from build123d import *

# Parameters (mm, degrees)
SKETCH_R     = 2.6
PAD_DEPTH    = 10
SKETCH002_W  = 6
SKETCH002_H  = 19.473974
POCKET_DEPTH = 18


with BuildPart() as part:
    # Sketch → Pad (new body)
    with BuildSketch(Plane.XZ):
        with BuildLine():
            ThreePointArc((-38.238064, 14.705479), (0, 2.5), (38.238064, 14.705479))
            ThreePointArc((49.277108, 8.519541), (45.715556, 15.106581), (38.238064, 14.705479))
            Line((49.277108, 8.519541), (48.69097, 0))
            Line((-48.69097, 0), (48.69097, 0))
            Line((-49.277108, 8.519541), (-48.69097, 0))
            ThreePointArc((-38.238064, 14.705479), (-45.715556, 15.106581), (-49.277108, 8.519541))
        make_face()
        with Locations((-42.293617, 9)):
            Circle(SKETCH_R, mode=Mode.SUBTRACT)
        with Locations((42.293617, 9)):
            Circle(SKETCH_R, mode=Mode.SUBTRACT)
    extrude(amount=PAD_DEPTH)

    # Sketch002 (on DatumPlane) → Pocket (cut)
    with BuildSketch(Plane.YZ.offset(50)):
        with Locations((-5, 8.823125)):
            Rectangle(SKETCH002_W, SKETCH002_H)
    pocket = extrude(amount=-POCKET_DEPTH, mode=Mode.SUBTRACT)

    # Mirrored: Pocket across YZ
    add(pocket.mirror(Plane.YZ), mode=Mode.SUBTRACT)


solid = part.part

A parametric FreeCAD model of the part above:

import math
import FreeCAD as App
import Part
import Sketcher
Q = App.Units.Quantity


def add_polygon(sketch, points):
    """Adds a closed chain of lines whose ends are joined by coincident constraints."""
    first, n = sketch.GeometryCount, len(points)
    for a, b in zip(points, points[1:] + points[:1]):
        sketch.addGeometry(Part.LineSegment(App.Vector(*a, 0), App.Vector(*b, 0)), False)
    for i in range(n):
        sketch.addConstraint(Sketcher.Constraint("Coincident", first + i, 2, first + (i + 1) % n, 1))

doc = App.newDocument("Part")
body = doc.addObject("PartDesign::Body", "Body")

sketch1 = body.newObject("Sketcher::SketchObject", "Sketch")
sketch1.AttachmentSupport = (doc.getObject("XZ_Plane"), [""])
sketch1.MapMode = "FlatFace"
sketch1.addGeometry(Part.ArcOfCircle(Part.Circle(App.Vector(0, 68.500001, 0), App.Vector(0, 0, 1), 66.000001), math.radians(-125.405864), math.radians(-54.594136)), False)
sketch1.addGeometry(Part.ArcOfCircle(Part.Circle(App.Vector(-42.293617, 9.000001, 0), App.Vector(0, 0, 1), 6.999999), math.radians(54.594126), math.radians(183.935711)), False)
sketch1.addGeometry(Part.LineSegment(App.Vector(-49.277108, 8.519541, 0), App.Vector(-48.69097, 0, 0)), False)
sketch1.addGeometry(Part.LineSegment(App.Vector(-48.69097, 0, 0), App.Vector(48.69097, 0, 0)), False)
sketch1.addGeometry(Part.LineSegment(App.Vector(48.69097, 0, 0), App.Vector(49.277108, 8.519541, 0)), False)
sketch1.addGeometry(Part.ArcOfCircle(Part.Circle(App.Vector(42.293617, 9.000001, 0), App.Vector(0, 0, 1), 6.999999), math.radians(-3.935711), math.radians(125.405874)), False)
sketch1.addGeometry(Part.Circle(App.Vector(42.293617, 9, 0), App.Vector(0, 0, 1), 2.6), False)
sketch1.addGeometry(Part.Circle(App.Vector(-42.293617, 9, 0), App.Vector(0, 0, 1), 2.6), False)
sketch1.addConstraint(Sketcher.Constraint("Tangent", 0, 1, 1, 1))
sketch1.addConstraint(Sketcher.Constraint("Tangent", 1, 2, 2, 1))
sketch1.addConstraint(Sketcher.Constraint("Coincident", 2, 2, 3, 1))
sketch1.addConstraint(Sketcher.Constraint("Coincident", 3, 2, 4, 1))
sketch1.addConstraint(Sketcher.Constraint("Tangent", 4, 2, 5, 1))
sketch1.addConstraint(Sketcher.Constraint("Tangent", 5, 2, 0, 2))
sketch1.addConstraint(Sketcher.Constraint("Horizontal", 3))
sketch1.addConstraint(Sketcher.Constraint("Coincident", 6, 3, 5, 3))
sketch1.addConstraint(Sketcher.Constraint("Coincident", 7, 3, 1, 3))
sketch1.addConstraint(Sketcher.Constraint("Equal", 1, 5))
sketch1.addConstraint(Sketcher.Constraint("Equal", 6, 7))
sketch1.addConstraint(Sketcher.Constraint("Symmetric", 2, 2, 3, 2, -1, 1))
sketch1.addConstraint(Sketcher.Constraint("Symmetric", 1, 3, 5, 3, -2))
sketch1.addConstraint(Sketcher.Constraint("Radius", 0, Q("66.000001 mm")))
sketch1.addConstraint(Sketcher.Constraint("Radius", 1, Q("6.999999 mm")))
sketch1.addConstraint(Sketcher.Constraint("Diameter", 6, Q("5.2 mm")))
sketch1.addConstraint(Sketcher.Constraint("DistanceY", -1, 1, 1, 3, Q("9.000001 mm")))
sketch1.addConstraint(Sketcher.Constraint("DistanceY", -1, 1, 0, 3, Q("68.500001 mm")))
sketch1.addConstraint(Sketcher.Constraint("DistanceX", 3, 1, 3, 2, Q("97.38194 mm")))
pad1 = body.newObject("PartDesign::Pad", "Pad")
pad1.Profile = sketch1
pad1.Length = 10

sketch2 = body.newObject("Sketcher::SketchObject", "Sketch001")
sketch2.AttachmentSupport = (doc.getObject("YZ_Plane"), [""])
sketch2.MapMode = "FlatFace"
sketch2.AttachmentOffset = App.Placement(App.Vector(0, 0, 50), App.Rotation())
add_polygon(sketch2, [(-8, 18.560112), (-8, -0.913862), (-2, -0.913862), (-2, 18.560112)])
sketch2.addConstraint(Sketcher.Constraint("Vertical", 0))
sketch2.addConstraint(Sketcher.Constraint("Horizontal", 1))
sketch2.addConstraint(Sketcher.Constraint("Vertical", 2))
sketch2.addConstraint(Sketcher.Constraint("Horizontal", 3))
sketch2.addConstraint(Sketcher.Constraint("DistanceX", 1, 1, 1, 2, Q("6 mm")))
sketch2.addConstraint(Sketcher.Constraint("DistanceX", 0, 2, -1, 1, Q("8 mm")))
sketch2.addConstraint(Sketcher.Constraint("DistanceY", 0, 2, 0, 1, Q("19.473974 mm")))
sketch2.addConstraint(Sketcher.Constraint("DistanceY", 0, 2, -1, 1, Q("0.913862 mm")))
pocket1 = body.newObject("PartDesign::Pocket", "Pocket")
pocket1.Profile = sketch2
pocket1.Length = 18
doc.recompute()

mirrored = body.newObject("PartDesign::Mirrored", "Mirrored")
mirrored.Originals = [pocket1]
mirrored.MirrorPlane = (doc.getObject("YZ_Plane"), [""])
body.Tip = mirrored

doc.recompute()
